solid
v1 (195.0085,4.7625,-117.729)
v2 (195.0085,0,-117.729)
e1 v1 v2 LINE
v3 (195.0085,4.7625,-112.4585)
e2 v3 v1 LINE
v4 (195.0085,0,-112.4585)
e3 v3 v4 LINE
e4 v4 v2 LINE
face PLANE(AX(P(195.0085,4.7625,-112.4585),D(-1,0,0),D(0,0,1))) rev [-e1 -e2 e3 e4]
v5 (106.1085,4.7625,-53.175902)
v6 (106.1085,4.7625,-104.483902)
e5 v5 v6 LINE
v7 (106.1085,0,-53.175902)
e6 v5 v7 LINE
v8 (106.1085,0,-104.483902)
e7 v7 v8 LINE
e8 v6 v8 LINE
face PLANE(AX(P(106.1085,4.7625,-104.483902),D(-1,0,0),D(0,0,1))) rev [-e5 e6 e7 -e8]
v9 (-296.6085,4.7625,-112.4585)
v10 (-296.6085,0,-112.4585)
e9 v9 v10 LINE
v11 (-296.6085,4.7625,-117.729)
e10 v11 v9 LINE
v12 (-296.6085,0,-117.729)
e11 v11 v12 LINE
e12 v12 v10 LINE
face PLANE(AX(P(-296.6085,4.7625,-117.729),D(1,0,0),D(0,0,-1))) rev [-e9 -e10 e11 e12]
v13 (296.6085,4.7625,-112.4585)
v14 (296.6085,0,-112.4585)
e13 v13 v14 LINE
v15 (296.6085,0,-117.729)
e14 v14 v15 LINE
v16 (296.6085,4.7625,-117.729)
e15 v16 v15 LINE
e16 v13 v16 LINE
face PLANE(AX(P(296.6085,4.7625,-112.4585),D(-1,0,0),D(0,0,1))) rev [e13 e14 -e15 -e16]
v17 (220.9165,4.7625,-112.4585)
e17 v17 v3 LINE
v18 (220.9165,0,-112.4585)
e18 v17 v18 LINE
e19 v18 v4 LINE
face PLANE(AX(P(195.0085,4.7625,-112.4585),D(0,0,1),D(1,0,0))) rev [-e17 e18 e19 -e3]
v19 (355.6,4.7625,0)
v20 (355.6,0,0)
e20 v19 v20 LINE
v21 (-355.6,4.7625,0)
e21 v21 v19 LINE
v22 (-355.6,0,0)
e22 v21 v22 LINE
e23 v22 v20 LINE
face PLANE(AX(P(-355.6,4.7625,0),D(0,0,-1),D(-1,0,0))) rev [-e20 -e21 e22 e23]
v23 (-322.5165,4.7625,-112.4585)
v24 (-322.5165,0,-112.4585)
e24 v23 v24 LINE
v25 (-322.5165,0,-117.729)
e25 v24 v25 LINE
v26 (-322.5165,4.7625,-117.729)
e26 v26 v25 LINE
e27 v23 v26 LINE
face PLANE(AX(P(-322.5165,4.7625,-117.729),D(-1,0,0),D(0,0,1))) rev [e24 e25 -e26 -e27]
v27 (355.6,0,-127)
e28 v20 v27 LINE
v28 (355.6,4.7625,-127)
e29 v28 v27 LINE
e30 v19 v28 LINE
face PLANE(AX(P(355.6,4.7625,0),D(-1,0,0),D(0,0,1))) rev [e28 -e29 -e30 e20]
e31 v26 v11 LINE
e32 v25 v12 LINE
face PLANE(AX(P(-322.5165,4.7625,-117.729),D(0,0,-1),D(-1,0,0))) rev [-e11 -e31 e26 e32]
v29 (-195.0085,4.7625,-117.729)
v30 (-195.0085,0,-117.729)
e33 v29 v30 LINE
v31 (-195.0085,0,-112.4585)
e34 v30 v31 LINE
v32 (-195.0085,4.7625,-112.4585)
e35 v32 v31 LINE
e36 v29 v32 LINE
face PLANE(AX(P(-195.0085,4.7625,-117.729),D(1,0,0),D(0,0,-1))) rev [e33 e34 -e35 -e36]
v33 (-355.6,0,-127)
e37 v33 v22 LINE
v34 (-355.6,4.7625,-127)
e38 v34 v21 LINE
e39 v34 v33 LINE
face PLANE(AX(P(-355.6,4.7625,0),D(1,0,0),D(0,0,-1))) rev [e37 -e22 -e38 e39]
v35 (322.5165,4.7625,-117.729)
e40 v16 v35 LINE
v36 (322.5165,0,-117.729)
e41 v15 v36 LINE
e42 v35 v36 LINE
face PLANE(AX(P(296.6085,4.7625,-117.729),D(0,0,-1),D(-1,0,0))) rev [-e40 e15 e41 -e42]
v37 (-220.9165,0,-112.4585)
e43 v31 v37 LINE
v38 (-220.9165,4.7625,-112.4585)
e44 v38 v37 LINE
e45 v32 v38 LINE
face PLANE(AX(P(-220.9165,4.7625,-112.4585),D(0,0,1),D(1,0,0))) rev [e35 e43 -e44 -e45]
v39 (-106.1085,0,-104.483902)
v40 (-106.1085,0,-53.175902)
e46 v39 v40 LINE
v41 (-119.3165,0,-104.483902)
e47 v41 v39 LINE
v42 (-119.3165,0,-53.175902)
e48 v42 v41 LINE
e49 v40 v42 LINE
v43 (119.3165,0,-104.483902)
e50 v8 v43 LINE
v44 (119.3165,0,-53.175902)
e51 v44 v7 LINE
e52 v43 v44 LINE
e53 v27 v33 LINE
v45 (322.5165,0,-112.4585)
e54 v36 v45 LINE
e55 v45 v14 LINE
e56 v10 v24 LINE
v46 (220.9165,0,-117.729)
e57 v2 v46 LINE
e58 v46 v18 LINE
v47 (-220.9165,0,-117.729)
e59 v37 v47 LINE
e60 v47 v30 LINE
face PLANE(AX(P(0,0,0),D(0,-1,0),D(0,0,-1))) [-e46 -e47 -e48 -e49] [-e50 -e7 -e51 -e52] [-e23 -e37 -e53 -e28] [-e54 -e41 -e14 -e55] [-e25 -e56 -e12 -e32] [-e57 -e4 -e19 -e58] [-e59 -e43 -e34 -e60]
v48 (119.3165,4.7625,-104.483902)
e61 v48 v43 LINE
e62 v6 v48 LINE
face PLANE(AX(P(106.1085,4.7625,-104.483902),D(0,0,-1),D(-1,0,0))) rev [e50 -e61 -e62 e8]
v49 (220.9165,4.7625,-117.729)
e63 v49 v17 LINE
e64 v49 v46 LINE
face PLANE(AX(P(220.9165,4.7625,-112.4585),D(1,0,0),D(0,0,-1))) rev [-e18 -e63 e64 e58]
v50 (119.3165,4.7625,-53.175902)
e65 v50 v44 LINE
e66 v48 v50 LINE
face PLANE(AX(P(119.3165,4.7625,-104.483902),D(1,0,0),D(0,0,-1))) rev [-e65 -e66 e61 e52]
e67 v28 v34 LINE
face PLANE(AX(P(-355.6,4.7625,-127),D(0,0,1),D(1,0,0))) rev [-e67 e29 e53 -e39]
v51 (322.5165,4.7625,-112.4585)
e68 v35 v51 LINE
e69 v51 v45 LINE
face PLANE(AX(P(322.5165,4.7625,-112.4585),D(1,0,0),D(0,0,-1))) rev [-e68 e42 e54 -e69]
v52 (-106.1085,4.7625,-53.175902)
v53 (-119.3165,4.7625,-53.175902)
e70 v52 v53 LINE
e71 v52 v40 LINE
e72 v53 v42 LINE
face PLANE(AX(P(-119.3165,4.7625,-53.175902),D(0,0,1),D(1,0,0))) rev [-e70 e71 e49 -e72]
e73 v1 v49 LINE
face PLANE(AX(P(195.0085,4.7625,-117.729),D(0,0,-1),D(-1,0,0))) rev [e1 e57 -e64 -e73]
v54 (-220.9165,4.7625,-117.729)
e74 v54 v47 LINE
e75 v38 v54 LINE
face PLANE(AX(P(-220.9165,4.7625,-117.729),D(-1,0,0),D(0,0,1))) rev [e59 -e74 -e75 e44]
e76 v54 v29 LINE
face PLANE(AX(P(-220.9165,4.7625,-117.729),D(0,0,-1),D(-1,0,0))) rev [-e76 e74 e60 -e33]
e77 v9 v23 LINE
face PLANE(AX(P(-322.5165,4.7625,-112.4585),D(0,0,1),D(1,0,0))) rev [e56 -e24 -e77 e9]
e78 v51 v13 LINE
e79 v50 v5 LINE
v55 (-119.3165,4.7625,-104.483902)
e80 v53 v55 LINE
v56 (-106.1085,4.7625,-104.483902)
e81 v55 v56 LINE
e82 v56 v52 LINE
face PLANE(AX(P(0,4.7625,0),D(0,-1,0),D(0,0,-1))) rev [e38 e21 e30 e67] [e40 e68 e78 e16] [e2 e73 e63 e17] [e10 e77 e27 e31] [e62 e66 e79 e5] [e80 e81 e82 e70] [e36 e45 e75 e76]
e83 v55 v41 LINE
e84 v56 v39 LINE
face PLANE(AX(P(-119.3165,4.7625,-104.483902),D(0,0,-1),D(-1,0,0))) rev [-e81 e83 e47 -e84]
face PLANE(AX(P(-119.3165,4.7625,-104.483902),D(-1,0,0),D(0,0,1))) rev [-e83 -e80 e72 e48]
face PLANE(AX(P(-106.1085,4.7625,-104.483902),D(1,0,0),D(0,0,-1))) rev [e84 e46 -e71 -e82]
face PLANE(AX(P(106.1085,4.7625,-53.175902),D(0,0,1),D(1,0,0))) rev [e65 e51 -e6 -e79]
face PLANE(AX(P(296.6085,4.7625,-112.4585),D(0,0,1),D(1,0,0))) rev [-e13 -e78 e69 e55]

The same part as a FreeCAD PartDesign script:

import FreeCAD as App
import Part
import Sketcher
Q = App.Units.Quantity


def add_polygon(sketch, points):
    """Adds a closed chain of lines whose ends are joined by coincident constraints."""
    first, n = sketch.GeometryCount, len(points)
    for a, b in zip(points, points[1:] + points[:1]):
        sketch.addGeometry(Part.LineSegment(App.Vector(*a, 0), App.Vector(*b, 0)), False)
    for i in range(n):
        sketch.addConstraint(Sketcher.Constraint("Coincident", first + i, 2, first + (i + 1) % n, 1))

doc = App.newDocument("Part")
params = doc.addObject("Spreadsheet::Sheet", "Params")
for row, (alias, value) in enumerate([
    ("sketch1_width", "28 in"),
    ("sketch1_height", "5 in"),
    ("pad1_length", "0.1875 in"),
    ("sketch2_width", "0.52 in"),
    ("sketch2_height", "2.02 in"),
    ("sketch3_width", "1.02 in"),
], start=1):
    params.set(f"A{row}", alias)
    params.set(f"B{row}", "=" + value)
    params.setAlias(f"B{row}", alias)

body = doc.addObject("PartDesign::Body", "Body")

sketch1 = body.newObject("Sketcher::SketchObject", "Sketch")
sketch1.AttachmentSupport = (doc.getObject("XZ_Plane"), [""])
sketch1.MapMode = "FlatFace"
add_polygon(sketch1, [(-355.6, -127), (-355.6, 0), (355.6, 0), (355.6, -127)])
sketch1.addConstraint([
    Sketcher.Constraint("Vertical", 0),
    Sketcher.Constraint("Horizontal", 1),
    Sketcher.Constraint("Vertical", 2),
    Sketcher.Constraint("Horizontal", 3),
    Sketcher.Constraint("Symmetric", 0, 2, 1, 2, -1, 1),
    Sketcher.Constraint("DistanceX", 1, 1, 1, 2, Q("28 in")),
    Sketcher.Constraint("DistanceY", 0, 1, 0, 2, Q("5 in")),
])
sketch1.setExpression("Constraints[9]", "Params.sketch1_width")
sketch1.setExpression("Constraints[10]", "Params.sketch1_height")
pad1 = body.newObject("PartDesign::Pad", "Pad")
pad1.Profile = sketch1
pad1.setExpression("Length", "Params.pad1_length")
pad1.Reversed = True

sketch2 = body.newObject("Sketcher::SketchObject", "Sketch001")
sketch2.AttachmentSupport = (doc.getObject("XZ_Plane"), [""])
sketch2.MapMode = "FlatFace"
add_polygon(sketch2, [(119.3165, -104.483902), (119.3165, -53.175902), (106.1085, -53.175902), (106.1085, -104.483902)])
add_polygon(sketch2, [(-106.1085, -104.483902), (-106.1085, -53.175902), (-119.3165, -53.175902), (-119.3165, -104.483902)])
sketch2.addConstraint([
    Sketcher.Constraint("Vertical", 0),
    Sketcher.Constraint("Horizontal", 1),
    Sketcher.Constraint("Vertical", 2),
    Sketcher.Constraint("Horizontal", 3),
    Sketcher.Constraint("Vertical", 4),
    Sketcher.Constraint("Horizontal", 5),
    Sketcher.Constraint("Vertical", 6),
    Sketcher.Constraint("Horizontal", 7),
    Sketcher.Constraint("Symmetric", 1, 2, 4, 2, -2),
    Sketcher.Constraint("Symmetric", 3, 2, 6, 2, -2),
    Sketcher.Constraint("DistanceX", 1, 2, 1, 1, Q("0.52 in")),
    Sketcher.Constraint("DistanceY", 0, 1, 0, 2, Q("2.02 in")),
    Sketcher.Constraint("DistanceX", 4, 2, 1, 2, Q("8.355 in")),
    Sketcher.Constraint("DistanceY", 0, 2, -1, 1, 53.175902),
])
sketch2.setExpression("Constraints[18]", "Params.sketch2_width")
sketch2.setExpression("Constraints[19]", "Params.sketch2_height")
pocket1 = body.newObject("PartDesign::Pocket", "Pocket")
pocket1.Profile = sketch2
pocket1.Type = "ThroughAll"

sketch3 = body.newObject("Sketcher::SketchObject", "Sketch002")
sketch3.AttachmentSupport = (doc.getObject("XZ_Plane"), [""])
sketch3.MapMode = "FlatFace"
add_polygon(sketch3, [(-322.5165, -112.4585), (-322.5165, -117.729), (-296.6085, -117.729), (-296.6085, -112.4585)])
add_polygon(sketch3, [(-220.9165, -112.4585), (-220.9165, -117.729), (-195.0085, -117.729), (-195.0085, -112.4585)])
add_polygon(sketch3, [(195.0085, -112.4585), (195.0085, -117.729), (220.9165, -117.729), (220.9165, -112.4585)])
add_polygon(sketch3, [(296.6085, -112.4585), (296.6085, -117.729), (322.5165, -117.729), (322.5165, -112.4585)])
sketch3.addConstraint([
    Sketcher.Constraint("Vertical", 0),
    Sketcher.Constraint("Horizontal", 1),
    Sketcher.Constraint("Vertical", 2),
    Sketcher.Constraint("Horizontal", 3),
    Sketcher.Constraint("Vertical", 4),
    Sketcher.Constraint("Horizontal", 5),
    Sketcher.Constraint("Vertical", 6),
    Sketcher.Constraint("Horizontal", 7),
    Sketcher.Constraint("Vertical", 8),
    Sketcher.Constraint("Horizontal", 9),
    Sketcher.Constraint("Vertical", 10),
    Sketcher.Constraint("Horizontal", 11),
    Sketcher.Constraint("Vertical", 12),
    Sketcher.Constraint("Horizontal", 13),
    Sketcher.Constraint("Vertical", 14),
    Sketcher.Constraint("Horizontal", 15),
    Sketcher.Constraint("Symmetric", 5, 2, 8, 2, -2),
    Sketcher.Constraint("Symmetric", 7, 2, 10, 2, -2),
    Sketcher.Constraint("Symmetric", 1, 2, 12, 2, -2),
    Sketcher.Constraint("Symmetric", 3, 2, 14, 2, -2),
    Sketcher.Constraint("Horizontal", 1, 2, 4, 2),
    Sketcher.Constraint("Horizontal", 3, 2, 6, 2),
    Sketcher.Constraint("Equal", 3, 5),
    Sketcher.Constraint("DistanceX", 0, 2, 4, 2, Q("4 in")),
    Sketcher.Constraint("DistanceX", 1, 1, 1, 2, Q("1.02 in")),
    Sketcher.Constraint("DistanceY", 0, 2, 0, 1, Q("0.2075 in")),
    Sketcher.Constraint("DistanceY", 0, 2, -1, 1, Q("4.635 in")),
    Sketcher.Constraint("DistanceX", 5, 2, 8, 2, Q("15.355 in")),
])
sketch3.setExpression("Constraints[40]", "Params.sketch3_width")
pocket2 = body.newObject("PartDesign::Pocket", "Pocket001")
pocket2.Profile = sketch3
pocket2.Type = "ThroughAll"

doc.recompute()
